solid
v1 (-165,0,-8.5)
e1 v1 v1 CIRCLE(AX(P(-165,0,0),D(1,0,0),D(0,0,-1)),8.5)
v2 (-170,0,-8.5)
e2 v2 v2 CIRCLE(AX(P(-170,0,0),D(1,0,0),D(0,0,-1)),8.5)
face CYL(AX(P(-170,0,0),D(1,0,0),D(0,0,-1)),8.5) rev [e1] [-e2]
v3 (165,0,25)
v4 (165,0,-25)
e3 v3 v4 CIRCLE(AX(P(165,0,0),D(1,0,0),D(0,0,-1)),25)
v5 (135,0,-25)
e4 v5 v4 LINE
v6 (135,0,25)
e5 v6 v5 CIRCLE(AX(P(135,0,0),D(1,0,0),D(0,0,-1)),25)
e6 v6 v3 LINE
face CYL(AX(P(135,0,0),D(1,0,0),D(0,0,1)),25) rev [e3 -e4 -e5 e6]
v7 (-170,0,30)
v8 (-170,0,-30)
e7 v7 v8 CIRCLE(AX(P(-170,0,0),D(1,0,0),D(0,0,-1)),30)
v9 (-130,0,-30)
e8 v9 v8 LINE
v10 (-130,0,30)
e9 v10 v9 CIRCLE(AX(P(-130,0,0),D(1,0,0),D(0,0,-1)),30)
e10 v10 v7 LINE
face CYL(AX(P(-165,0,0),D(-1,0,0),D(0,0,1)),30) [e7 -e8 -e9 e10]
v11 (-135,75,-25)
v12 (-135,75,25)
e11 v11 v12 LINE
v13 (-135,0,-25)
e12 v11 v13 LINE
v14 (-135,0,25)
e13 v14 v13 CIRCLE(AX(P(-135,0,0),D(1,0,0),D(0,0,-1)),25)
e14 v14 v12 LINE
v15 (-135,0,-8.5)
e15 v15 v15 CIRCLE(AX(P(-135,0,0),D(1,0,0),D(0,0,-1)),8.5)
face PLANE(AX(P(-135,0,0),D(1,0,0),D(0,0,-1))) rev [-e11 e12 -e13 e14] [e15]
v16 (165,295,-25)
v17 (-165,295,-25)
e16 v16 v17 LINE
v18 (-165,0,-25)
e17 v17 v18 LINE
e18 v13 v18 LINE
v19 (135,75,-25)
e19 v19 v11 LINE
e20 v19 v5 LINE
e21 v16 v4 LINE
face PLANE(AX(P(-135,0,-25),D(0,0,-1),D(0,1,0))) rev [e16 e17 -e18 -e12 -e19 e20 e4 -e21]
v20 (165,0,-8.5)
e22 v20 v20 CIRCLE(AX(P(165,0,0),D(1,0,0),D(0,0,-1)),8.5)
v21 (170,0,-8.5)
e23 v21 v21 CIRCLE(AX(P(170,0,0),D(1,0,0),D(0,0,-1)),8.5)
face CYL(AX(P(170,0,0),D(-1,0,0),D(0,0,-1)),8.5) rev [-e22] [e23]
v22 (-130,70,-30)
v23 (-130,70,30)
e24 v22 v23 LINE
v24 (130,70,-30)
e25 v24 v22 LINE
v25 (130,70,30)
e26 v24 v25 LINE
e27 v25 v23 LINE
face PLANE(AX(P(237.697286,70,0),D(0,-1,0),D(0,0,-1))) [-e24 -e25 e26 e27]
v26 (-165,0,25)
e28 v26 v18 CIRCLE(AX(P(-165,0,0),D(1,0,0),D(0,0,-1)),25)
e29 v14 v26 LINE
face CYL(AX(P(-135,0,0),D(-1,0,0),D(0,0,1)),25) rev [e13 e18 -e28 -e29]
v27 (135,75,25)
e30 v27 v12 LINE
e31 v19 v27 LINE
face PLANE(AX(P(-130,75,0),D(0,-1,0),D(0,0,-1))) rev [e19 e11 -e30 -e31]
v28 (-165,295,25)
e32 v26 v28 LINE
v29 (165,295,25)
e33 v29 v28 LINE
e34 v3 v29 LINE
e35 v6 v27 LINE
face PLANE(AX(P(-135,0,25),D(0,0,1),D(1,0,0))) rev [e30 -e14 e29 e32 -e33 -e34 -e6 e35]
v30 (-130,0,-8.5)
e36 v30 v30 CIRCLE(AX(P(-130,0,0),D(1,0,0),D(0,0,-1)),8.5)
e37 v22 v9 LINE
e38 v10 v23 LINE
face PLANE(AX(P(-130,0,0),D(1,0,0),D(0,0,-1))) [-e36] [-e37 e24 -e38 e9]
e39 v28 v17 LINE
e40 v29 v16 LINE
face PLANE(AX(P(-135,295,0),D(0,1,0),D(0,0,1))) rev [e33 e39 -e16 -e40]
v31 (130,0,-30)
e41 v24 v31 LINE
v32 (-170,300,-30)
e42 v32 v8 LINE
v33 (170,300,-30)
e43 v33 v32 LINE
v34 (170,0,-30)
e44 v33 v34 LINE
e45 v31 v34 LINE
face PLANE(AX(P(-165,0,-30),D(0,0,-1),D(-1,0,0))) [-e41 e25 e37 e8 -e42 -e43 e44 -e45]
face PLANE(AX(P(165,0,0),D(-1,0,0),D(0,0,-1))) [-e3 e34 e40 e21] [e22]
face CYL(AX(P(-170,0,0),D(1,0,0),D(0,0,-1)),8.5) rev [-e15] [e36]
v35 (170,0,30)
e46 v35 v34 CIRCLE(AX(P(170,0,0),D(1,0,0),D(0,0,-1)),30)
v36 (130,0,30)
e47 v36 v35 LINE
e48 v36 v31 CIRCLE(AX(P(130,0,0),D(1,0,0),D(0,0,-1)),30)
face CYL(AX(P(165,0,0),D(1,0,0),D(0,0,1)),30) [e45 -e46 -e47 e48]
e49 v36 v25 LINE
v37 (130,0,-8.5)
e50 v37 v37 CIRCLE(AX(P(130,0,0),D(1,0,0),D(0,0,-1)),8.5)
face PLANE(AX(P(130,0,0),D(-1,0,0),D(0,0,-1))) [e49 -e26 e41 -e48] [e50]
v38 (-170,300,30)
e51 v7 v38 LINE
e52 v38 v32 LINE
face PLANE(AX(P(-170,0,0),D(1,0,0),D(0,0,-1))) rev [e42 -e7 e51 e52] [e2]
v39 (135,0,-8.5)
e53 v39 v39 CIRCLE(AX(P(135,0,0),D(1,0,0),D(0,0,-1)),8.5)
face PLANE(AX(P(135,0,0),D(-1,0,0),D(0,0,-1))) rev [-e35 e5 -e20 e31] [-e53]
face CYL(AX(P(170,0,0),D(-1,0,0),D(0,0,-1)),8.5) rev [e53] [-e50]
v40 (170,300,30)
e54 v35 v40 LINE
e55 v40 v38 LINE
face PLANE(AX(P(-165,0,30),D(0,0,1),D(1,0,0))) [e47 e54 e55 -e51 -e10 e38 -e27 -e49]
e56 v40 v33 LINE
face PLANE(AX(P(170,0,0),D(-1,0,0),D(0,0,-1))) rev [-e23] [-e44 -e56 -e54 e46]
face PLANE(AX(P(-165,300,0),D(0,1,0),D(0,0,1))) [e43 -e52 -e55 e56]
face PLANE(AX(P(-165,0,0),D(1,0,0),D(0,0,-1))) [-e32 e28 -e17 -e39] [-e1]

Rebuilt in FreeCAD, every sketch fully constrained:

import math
import FreeCAD as App
import Part
import Sketcher
from FreeCAD import Vector
Q = App.Units.Quantity


def add_polygon(sketch, points):
    """Adds a closed chain of lines whose ends are joined by coincident constraints."""
    first, n = sketch.GeometryCount, len(points)
    for a, b in zip(points, points[1:] + points[:1]):
        sketch.addGeometry(Part.LineSegment(App.Vector(*a, 0), App.Vector(*b, 0)), False)
    for i in range(n):
        sketch.addConstraint(Sketcher.Constraint("Coincident", first + i, 2, first + (i + 1) % n, 1))

doc = App.newDocument("Part")
body = doc.addObject("PartDesign::Body", "Body")

# Sketch on YZ plane
sketch1 = body.newObject("Sketcher::SketchObject", "Sketch")
sketch1.AttachmentSupport = (doc.getObject("YZ_Plane"), [""])
sketch1.MapMode = "FlatFace"
sketch1.AttachmentOffset = App.Placement(Vector(0, 0, -170), App.Rotation())
sketch1.addGeometry(Part.LineSegment(Vector(300, 30, 0), Vector(0, 30, 0)), False)
sketch1.addGeometry(Part.ArcOfCircle(Part.Circle(Vector(0, 0, 0), Vector(0, 0, 1), 30), math.radians(90), math.radians(270)), False)
sketch1.addGeometry(Part.LineSegment(Vector(0, -30, 0), Vector(300, -30, 0)), False)
sketch1.addGeometry(Part.LineSegment(Vector(300, -30, 0), Vector(300, 30, 0)), False)
sketch1.addConstraint(Sketcher.Constraint("Tangent", 0, 2, 1, 1))
sketch1.addConstraint(Sketcher.Constraint("Tangent", 1, 2, 2, 1))
sketch1.addConstraint(Sketcher.Constraint("Coincident", 2, 2, 3, 1))
sketch1.addConstraint(Sketcher.Constraint("Coincident", 3, 2, 0, 1))
sketch1.addConstraint(Sketcher.Constraint("Horizontal", 0))
sketch1.addConstraint(Sketcher.Constraint("Horizontal", 2))
sketch1.addConstraint(Sketcher.Constraint("Vertical", 3))
sketch1.addConstraint(Sketcher.Constraint("Coincident", 1, 3, -1, 1))
sketch1.addConstraint(Sketcher.Constraint("Radius", 1, Q("30 mm")))
sketch1.addConstraint(Sketcher.Constraint("DistanceX", 0, 2, 0, 1, Q("300 mm")))
pad1 = body.newObject("PartDesign::Pad", "Pad")
pad1.Profile = sketch1
pad1.Length = 5

# Sketch on YZ plane
sketch2 = body.newObject("Sketcher::SketchObject", "Sketch001")
sketch2.AttachmentSupport = (doc.getObject("YZ_Plane"), [""])
sketch2.MapMode = "FlatFace"
sketch2.AttachmentOffset = App.Placement(Vector(0, 0, -165), App.Rotation())
sketch2.addGeometry(Part.LineSegment(Vector(300, -30, 0), Vector(300, 30, 0)), False)
sketch2.addGeometry(Part.LineSegment(Vector(300, 30, 0), Vector(0, 30, 0)), False)
sketch2.addGeometry(Part.ArcOfCircle(Part.Circle(Vector(0, 0, 0), Vector(0, 0, 1), 30), math.radians(90), math.radians(180)), False)
sketch2.addGeometry(Part.ArcOfCircle(Part.Circle(Vector(0, 0, 0), Vector(0, 0, 1), 30), math.radians(180), math.radians(270)), False)
sketch2.addGeometry(Part.LineSegment(Vector(0, -30, 0), Vector(300, -30, 0)), False)
sketch2.addGeometry(Part.LineSegment(Vector(295, 25, 0), Vector(295, -25, 0)), False)
sketch2.addGeometry(Part.LineSegment(Vector(295, -25, 0), Vector(0, -25, 0)), False)
sketch2.addGeometry(Part.ArcOfCircle(Part.Circle(Vector(0, 0, 0), Vector(0, 0, 1), 25), math.radians(180), math.radians(270)), False)
sketch2.addGeometry(Part.ArcOfCircle(Part.Circle(Vector(0, 0, 0), Vector(0, 0, 1), 25), math.radians(90), math.radians(180)), False)
sketch2.addGeometry(Part.LineSegment(Vector(0, 25, 0), Vector(295, 25, 0)), False)
sketch2.addConstraint(Sketcher.Constraint("Coincident", 0, 2, 1, 1))
sketch2.addConstraint(Sketcher.Constraint("Tangent", 1, 2, 2, 1))
sketch2.addConstraint(Sketcher.Constraint("Tangent", 2, 2, 3, 1))
sketch2.addConstraint(Sketcher.Constraint("Tangent", 3, 2, 4, 1))
sketch2.addConstraint(Sketcher.Constraint("Coincident", 4, 2, 0, 1))
sketch2.addConstraint(Sketcher.Constraint("Coincident", 5, 2, 6, 1))
sketch2.addConstraint(Sketcher.Constraint("Tangent", 6, 2, 7, 2))
sketch2.addConstraint(Sketcher.Constraint("Tangent", 7, 1, 8, 2))
sketch2.addConstraint(Sketcher.Constraint("Tangent", 8, 1, 9, 1))
sketch2.addConstraint(Sketcher.Constraint("Coincident", 9, 2, 5, 1))
sketch2.addConstraint(Sketcher.Constraint("Vertical", 0))
sketch2.addConstraint(Sketcher.Constraint("Horizontal", 1))
sketch2.addConstraint(Sketcher.Constraint("Horizontal", 4))
sketch2.addConstraint(Sketcher.Constraint("Vertical", 5))
sketch2.addConstraint(Sketcher.Constraint("Horizontal", 6))
sketch2.addConstraint(Sketcher.Constraint("Horizontal", 9))
sketch2.addConstraint(Sketcher.Constraint("Coincident", 2, 3, -1, 1))
sketch2.addConstraint(Sketcher.Constraint("Coincident", 7, 3, -1, 1))
sketch2.addConstraint(Sketcher.Constraint("Equal", 2, 3))
sketch2.addConstraint(Sketcher.Constraint("Equal", 7, 8))
sketch2.addConstraint(Sketcher.Constraint("PointOnObject", 2, 2, -1))
sketch2.addConstraint(Sketcher.Constraint("PointOnObject", 7, 1, -1))
sketch2.addConstraint(Sketcher.Constraint("Radius", 2, Q("30 mm")))
sketch2.addConstraint(Sketcher.Constraint("Radius", 7, Q("25 mm")))
sketch2.addConstraint(Sketcher.Constraint("DistanceX", 1, 2, 1, 1, Q("300 mm")))
sketch2.addConstraint(Sketcher.Constraint("DistanceX", 6, 2, 6, 1, Q("295 mm")))
pad2 = body.newObject("PartDesign::Pad", "Pad001")
pad2.Profile = sketch2
pad2.Length = 30

# Sketch on YZ plane
sketch3 = body.newObject("Sketcher::SketchObject", "Sketch002")
sketch3.AttachmentSupport = (doc.getObject("YZ_Plane"), [""])
sketch3.MapMode = "FlatFace"
sketch3.AttachmentOffset = App.Placement(Vector(0, 0, -135), App.Rotation())
sketch3.addGeometry(Part.ArcOfCircle(Part.Circle(Vector(0, 0, 0), Vector(0, 0, 1), 30), math.radians(90), math.radians(270)), False)  # 0
sketch3.addGeometry(Part.LineSegment(Vector(0, -30, 0), Vector(300, -30, 0)), False)  # 1
sketch3.addGeometry(Part.LineSegment(Vector(300, -30, 0), Vector(300, 30, 0)), False)  # 2
sketch3.addGeometry(Part.LineSegment(Vector(300, 30, 0), Vector(0, 30, 0)), False)  # 3
add_polygon(sketch3, [(75, -25), (75, 25), (295, 25), (295, -25)])  # lines 4-7
sketch3.addConstraint(Sketcher.Constraint("Tangent", 0, 2, 1, 1))
sketch3.addConstraint(Sketcher.Constraint("Coincident", 1, 2, 2, 1))
sketch3.addConstraint(Sketcher.Constraint("Coincident", 2, 2, 3, 1))
sketch3.addConstraint(Sketcher.Constraint("Tangent", 3, 2, 0, 1))
sketch3.addConstraint(Sketcher.Constraint("Horizontal", 1))
sketch3.addConstraint(Sketcher.Constraint("Vertical", 2))
sketch3.addConstraint(Sketcher.Constraint("Horizontal", 3))
sketch3.addConstraint(Sketcher.Constraint("Vertical", 4))
sketch3.addConstraint(Sketcher.Constraint("Horizontal", 5))
sketch3.addConstraint(Sketcher.Constraint("Vertical", 6))
sketch3.addConstraint(Sketcher.Constraint("Horizontal", 7))
sketch3.addConstraint(Sketcher.Constraint("Coincident", 0, 3, -1, 1))
sketch3.addConstraint(Sketcher.Constraint("Radius", 0, Q("30 mm")))
sketch3.addConstraint(Sketcher.Constraint("DistanceX", 1, 1, 1, 2, Q("300 mm")))
sketch3.addConstraint(Sketcher.Constraint("DistanceX", 5, 1, 5, 2, Q("220 mm")))
sketch3.addConstraint(Sketcher.Constraint("DistanceY", 4, 1, 4, 2, Q("50 mm")))
sketch3.addConstraint(Sketcher.Constraint("DistanceX", -1, 1, 4, 2, Q("75 mm")))
sketch3.addConstraint(Sketcher.Constraint("DistanceY", -1, 1, 4, 2, Q("25 mm")))
pad3 = body.newObject("PartDesign::Pad", "Pad002")
pad3.Profile = sketch3
pad3.Length = 5

# Sketch on YZ plane
sketch4 = body.newObject("Sketcher::SketchObject", "Sketch003")
sketch4.AttachmentSupport = (doc.getObject("YZ_Plane"), [""])
sketch4.MapMode = "FlatFace"
sketch4.AttachmentOffset = App.Placement(Vector(0, 0, -130), App.Rotation())
add_polygon(sketch4, [(70, 30), (70, -30), (300, -30), (300, 30)])  # lines 0-3
add_polygon(sketch4, [(75, -25), (75, 25), (295, 25), (295, -25)])  # lines 4-7
sketch4.addConstraint(Sketcher.Constraint("Vertical", 0))
sketch4.addConstraint(Sketcher.Constraint("Horizontal", 1))
sketch4.addConstraint(Sketcher.Constraint("Vertical", 2))
sketch4.addConstraint(Sketcher.Constraint("Horizontal", 3))
sketch4.addConstraint(Sketcher.Constraint("Vertical", 4))
sketch4.addConstraint(Sketcher.Constraint("Horizontal", 5))
sketch4.addConstraint(Sketcher.Constraint("Vertical", 6))
sketch4.addConstraint(Sketcher.Constraint("Horizontal", 7))
sketch4.addConstraint(Sketcher.Constraint("DistanceX", 1, 1, 1, 2, Q("230 mm")))
sketch4.addConstraint(Sketcher.Constraint("DistanceX", 5, 1, 5, 2, Q("220 mm")))
sketch4.addConstraint(Sketcher.Constraint("DistanceY", 0, 2, 0, 1, Q("60 mm")))
sketch4.addConstraint(Sketcher.Constraint("DistanceY", 4, 1, 4, 2, Q("50 mm")))
sketch4.addConstraint(Sketcher.Constraint("DistanceX", -1, 1, 0, 2, Q("70 mm")))
sketch4.addConstraint(Sketcher.Constraint("DistanceY", 0, 2, -1, 1, Q("30 mm")))
sketch4.addConstraint(Sketcher.Constraint("DistanceX", -1, 1, 4, 2, Q("75 mm")))
sketch4.addConstraint(Sketcher.Constraint("DistanceY", -1, 1, 4, 2, Q("25 mm")))
pad4 = body.newObject("PartDesign::Pad", "Pad003")
pad4.Profile = sketch4
pad4.Length = 130

# Sketch on YZ plane
sketch5 = body.newObject("Sketcher::SketchObject", "Sketch004")
sketch5.AttachmentSupport = (doc.getObject("YZ_Plane"), [""])
sketch5.MapMode = "FlatFace"
sketch5.addGeometry(Part.Circle(Vector(0, 0, 0), Vector(0, 0, 1), 8.5), False)
sketch5.addConstraint(Sketcher.Constraint("Coincident", 0, 3, -1, 1))
sketch5.addConstraint(Sketcher.Constraint("Diameter", 0, Q("17 mm")))
pocket1 = body.newObject("PartDesign::Pocket", "Pocket")
pocket1.Profile = sketch5
pocket1.Type = "ThroughAll"
body2 = doc.addObject("PartDesign::Body", "Body001")
doc.recompute()

body2.BaseFeature = body
doc.recompute()

mirroring = doc.addObject("Part::Mirroring", "Mirroring")
mirroring.Source = body
mirroring.Base = Vector(0, 0, 0)
mirroring.Normal = Vector(1, 0, 0)
body3 = doc.addObject("PartDesign::Body", "Body002")
body3.BaseFeature = mirroring
boolean = body2.newObject("PartDesign::Boolean", "Boolean")
boolean.Type = "Fuse"
boolean.addObjects([body3])
doc.recompute()
mirroring.Visibility = False

doc.recompute()
